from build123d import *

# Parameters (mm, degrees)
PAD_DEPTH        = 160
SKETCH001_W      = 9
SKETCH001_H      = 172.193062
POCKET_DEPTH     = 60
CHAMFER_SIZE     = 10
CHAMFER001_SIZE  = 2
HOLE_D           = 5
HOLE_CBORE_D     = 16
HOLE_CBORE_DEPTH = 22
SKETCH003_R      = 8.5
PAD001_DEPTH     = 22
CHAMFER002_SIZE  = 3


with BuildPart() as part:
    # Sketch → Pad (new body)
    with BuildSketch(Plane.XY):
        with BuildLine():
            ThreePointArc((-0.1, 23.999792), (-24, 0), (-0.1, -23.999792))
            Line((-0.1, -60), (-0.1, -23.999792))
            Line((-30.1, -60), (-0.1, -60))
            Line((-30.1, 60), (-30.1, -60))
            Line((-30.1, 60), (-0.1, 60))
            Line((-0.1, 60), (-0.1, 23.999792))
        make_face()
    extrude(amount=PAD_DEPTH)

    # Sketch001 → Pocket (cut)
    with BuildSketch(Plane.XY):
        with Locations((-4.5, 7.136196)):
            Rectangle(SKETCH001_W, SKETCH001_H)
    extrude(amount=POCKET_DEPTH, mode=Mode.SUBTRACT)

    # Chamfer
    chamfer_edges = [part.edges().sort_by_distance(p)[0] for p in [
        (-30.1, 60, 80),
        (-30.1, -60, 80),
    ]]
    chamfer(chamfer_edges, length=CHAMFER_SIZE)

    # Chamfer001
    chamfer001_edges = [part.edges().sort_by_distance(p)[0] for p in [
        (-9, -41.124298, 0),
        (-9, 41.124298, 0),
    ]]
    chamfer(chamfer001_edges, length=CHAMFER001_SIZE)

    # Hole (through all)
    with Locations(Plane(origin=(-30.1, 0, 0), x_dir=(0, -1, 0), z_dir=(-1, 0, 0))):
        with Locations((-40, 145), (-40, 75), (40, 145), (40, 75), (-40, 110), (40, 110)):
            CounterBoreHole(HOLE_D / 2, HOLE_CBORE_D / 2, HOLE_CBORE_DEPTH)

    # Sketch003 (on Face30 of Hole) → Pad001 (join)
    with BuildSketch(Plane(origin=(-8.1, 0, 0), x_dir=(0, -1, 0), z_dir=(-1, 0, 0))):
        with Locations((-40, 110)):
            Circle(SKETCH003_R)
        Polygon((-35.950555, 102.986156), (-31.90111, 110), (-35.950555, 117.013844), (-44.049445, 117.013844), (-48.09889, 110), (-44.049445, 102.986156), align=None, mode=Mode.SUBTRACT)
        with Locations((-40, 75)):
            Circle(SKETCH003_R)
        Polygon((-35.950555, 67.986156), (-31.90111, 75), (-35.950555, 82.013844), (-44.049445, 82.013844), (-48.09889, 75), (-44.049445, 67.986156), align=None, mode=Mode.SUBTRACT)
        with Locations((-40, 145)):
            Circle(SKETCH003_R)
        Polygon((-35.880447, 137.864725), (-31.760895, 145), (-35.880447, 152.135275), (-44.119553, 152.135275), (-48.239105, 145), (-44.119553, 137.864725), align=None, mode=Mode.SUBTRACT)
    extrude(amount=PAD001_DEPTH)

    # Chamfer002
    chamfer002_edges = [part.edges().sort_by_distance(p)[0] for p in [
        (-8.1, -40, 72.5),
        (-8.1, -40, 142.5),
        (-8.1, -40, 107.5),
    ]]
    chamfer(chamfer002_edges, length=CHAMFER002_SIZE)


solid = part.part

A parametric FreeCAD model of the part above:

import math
import FreeCAD as App
import Part
import Sketcher

V = App.Vector
Q = App.Units.Quantity


def edges_at(feature, points):
    """Names of the edges that pass closest to the given points."""
    edges = feature.Shape.Edges
    near = lambda p: min(range(len(edges)), key=lambda i: edges[i].distToShape(Part.Vertex(*p))[0])
    return sorted({f"Edge{near(p) + 1}" for p in points})


def add_polygon(sketch, points):
    """Adds a closed chain of lines whose ends are joined by coincident constraints."""
    first, n = sketch.GeometryCount, len(points)
    for a, b in zip(points, points[1:] + points[:1]):
        sketch.addGeometry(Part.LineSegment(App.Vector(*a, 0), App.Vector(*b, 0)), False)
    for i in range(n):
        sketch.addConstraint(Sketcher.Constraint("Coincident", first + i, 2, first + (i + 1) % n, 1))

doc = App.newDocument("Part")
params = doc.addObject("Spreadsheet::Sheet", "Params")
for row, (alias, value) in enumerate([
    ("sketch1_radius", "24 mm"),
    ("sketch1_width", "30 mm"),
    ("sketch1_height", "120 mm"),
    ("pad1_length", "160 mm"),
    ("sketch2_width", "9 mm"),
    ("pocket1_length", "60 mm"),
    ("chamfer_size", "10 mm"),
    ("chamfer2_size", "2 mm"),
    ("sketch3_diameter", "5 mm"),
    ("hole_diameter", "5 mm"),
    ("hole_cbore_diameter", "16 mm"),
    ("hole_cbore_depth", "22 mm"),
    ("sketch4_diameter", "17 mm"),
    ("pad2_length", "22 mm"),
    ("chamfer3_size", "3 mm"),
], start=1):
    params.set(f"A{row}", alias)
    params.set(f"B{row}", "=" + value)
    params.setAlias(f"B{row}", alias)

body = doc.addObject("PartDesign::Body", "Body")

sketch1 = body.newObject("Sketcher::SketchObject", "Sketch")
sketch1.AttachmentSupport = (doc.getObject("XY_Plane"), [""])
sketch1.MapMode = "FlatFace"
sketch1.addGeometry([
    Part.ArcOfCircle(Part.Circle(V(0, 0, 0), V(0, 0, 1), 24), math.radians(90), math.radians(270)),
    Part.LineSegment(V(0, 24, 0), V(0, 60, 0)),
    Part.LineSegment(V(0, 60, 0), V(-30, 60, 0)),
    Part.LineSegment(V(-30, 60, 0), V(-30, -60, 0)),
    Part.LineSegment(V(-30, -60, 0), V(0, -60, 0)),
    Part.LineSegment(V(0, -60, 0), V(0, -24, 0)),
], False)
sketch1.addConstraint([
    Sketcher.Constraint("Coincident", 0, 1, 1, 1),
    Sketcher.Constraint("Coincident", 1, 2, 2, 1),
    Sketcher.Constraint("Coincident", 2, 2, 3, 1),
    Sketcher.Constraint("Coincident", 3, 2, 4, 1),
    Sketcher.Constraint("Coincident", 4, 2, 5, 1),
    Sketcher.Constraint("Coincident", 5, 2, 0, 2),
    Sketcher.Constraint("Vertical", 1),
    Sketcher.Constraint("Horizontal", 2),
    Sketcher.Constraint("Vertical", 3),
    Sketcher.Constraint("Horizontal", 4),
    Sketcher.Constraint("Vertical", 5),
    Sketcher.Constraint("Coincident", 0, 3, -1, 1),
    Sketcher.Constraint("Symmetric", 1, 2, 4, 2, -1),
    Sketcher.Constraint("Radius", 0, Q("24 mm")),
    Sketcher.Constraint("DistanceX", 2, 2, 2, 1, Q("30 mm")),
    Sketcher.Constraint("DistanceY", 3, 2, 3, 1, Q("120 mm")),
    Sketcher.Constraint("DistanceX", 0, 1, -1, 1, Q("0.1 mm")),
])
sketch1.setExpression("Constraints[13]", "Params.sketch1_radius")
sketch1.setExpression("Constraints[14]", "Params.sketch1_width")
sketch1.setExpression("Constraints[15]", "Params.sketch1_height")
pad1 = body.newObject("PartDesign::Pad", "Pad")
pad1.Profile = sketch1
pad1.setExpression("Length", "Params.pad1_length")

sketch2 = body.newObject("Sketcher::SketchObject", "Sketch001")
sketch2.AttachmentSupport = (doc.getObject("XY_Plane"), [""])
sketch2.MapMode = "FlatFace"
add_polygon(sketch2, [(-9, 93), (-9, -79), (0, -79), (0, 93)])
sketch2.addConstraint([
    Sketcher.Constraint("Vertical", 0),
    Sketcher.Constraint("Horizontal", 1),
    Sketcher.Constraint("Vertical", 2),
    Sketcher.Constraint("Horizontal", 3),
    Sketcher.Constraint("PointOnObject", 1, 2, -2),
    Sketcher.Constraint("DistanceX", 1, 1, 1, 2, Q("9 mm")),
    Sketcher.Constraint("DistanceY", 0, 2, 0, 1, Q("172.193062 mm")),
    Sketcher.Constraint("DistanceY", 0, 2, -1, 1, Q("78.960335 mm")),
])
sketch2.setExpression("Constraints[9]", "Params.sketch2_width")
pocket1 = body.newObject("PartDesign::Pocket", "Pocket")
pocket1.Profile = sketch2
pocket1.setExpression("Length", "Params.pocket1_length")
pocket1.Reversed = True
doc.recompute()

chamfer = body.newObject("PartDesign::Chamfer", "Chamfer")
chamfer.Base = (pocket1, edges_at(pocket1, [(-30.1, 60, 80), (-30.1, -60, 80)]))
chamfer.setExpression("Size", "Params.chamfer_size")
doc.recompute()

chamfer2 = body.newObject("PartDesign::Chamfer", "Chamfer001")
chamfer2.Base = (chamfer, edges_at(chamfer, [(-9, -41.124, 0), (-9, 41.124, 0)]))
chamfer2.setExpression("Size", "Params.chamfer2_size")

sketch3 = body.newObject("Sketcher::SketchObject", "Sketch002")
sketch3.AttachmentSupport = (doc.getObject("YZ_Plane"), [""])
sketch3.MapMode = "FlatFace"
sketch3.AttachmentOffset = App.Placement(V(0, 0, -30.1), App.Rotation())
sketch3.addGeometry([
    Part.Circle(V(40, 145, 0), V(0, 0, 1), 2.5),
    Part.Circle(V(40, 75, 0), V(0, 0, 1), 2.5),
    Part.Circle(V(-40, 145, 0), V(0, 0, 1), 2.5),
    Part.Circle(V(-40, 75, 0), V(0, 0, 1), 2.5),
    Part.Circle(V(40, 110, 0), V(0, 0, 1), 2.5),
    Part.Circle(V(-40, 110, 0), V(0, 0, 1), 2.5),
], False)
sketch3.addConstraint([
    Sketcher.Constraint("Equal", 0, 1),
    Sketcher.Constraint("Equal", 1, 2),
    Sketcher.Constraint("Equal", 2, 3),
    Sketcher.Constraint("Equal", 3, 4),
    Sketcher.Constraint("Equal", 4, 5),
    Sketcher.Constraint("Symmetric", 0, 3, 2, 3, -2),
    Sketcher.Constraint("Symmetric", 1, 3, 3, 3, -2),
    Sketcher.Constraint("Symmetric", 4, 3, 5, 3, -2),
    Sketcher.Constraint("Vertical", 0, 3, 1, 3),
    Sketcher.Constraint("Vertical", 1, 3, 4, 3),
    Sketcher.Constraint("Diameter", 0, Q("5 mm")),
    Sketcher.Constraint("DistanceX", -1, 1, 0, 3, Q("40 mm")),
    Sketcher.Constraint("DistanceY", -1, 1, 0, 3, Q("145 mm")),
    Sketcher.Constraint("DistanceY", -1, 1, 1, 3, Q("75 mm")),
    Sketcher.Constraint("DistanceY", -1, 1, 4, 3, Q("110 mm")),
])
sketch3.setExpression("Constraints[10]", "Params.sketch3_diameter")
doc.recompute()
hole = body.newObject("PartDesign::Hole", "Hole")
hole.Profile = sketch3
hole.ThreadType = "None"
hole.setExpression("Diameter", "Params.hole_diameter")
hole.DepthType = "ThroughAll"
hole.HoleCutType = "Counterbore"
hole.setExpression("HoleCutDiameter", "Params.hole_cbore_diameter")
hole.setExpression("HoleCutDepth", "Params.hole_cbore_depth")
hole.Reversed = True

sketch4 = body.newObject("Sketcher::SketchObject", "Sketch003")
sketch4.AttachmentSupport = (doc.getObject("YZ_Plane"), [""])
sketch4.MapMode = "FlatFace"
sketch4.AttachmentOffset = App.Placement(V(0, 0, -8.1), App.Rotation())
sketch4.addGeometry(Part.Circle(V(40, 110, 0), V(0, 0, 1), 8), False)
add_polygon(sketch4, [(32, 110), (36, 103), (44, 103), (48, 110), (44, 117), (36, 117)])
sketch4.addGeometry(Part.Circle(V(40, 75, 0), V(0, 0, 1), 8), False)
add_polygon(sketch4, [(32, 75), (36, 68), (44, 68), (48, 75), (44, 82), (36, 82)])
sketch4.addGeometry(Part.Circle(V(40, 145, 0), V(0, 0, 1), 8), False)
add_polygon(sketch4, [(32, 145), (36, 138), (44, 138), (48, 145), (44, 152), (36, 152)])
sketch4.addConstraint([
    Sketcher.Constraint("Horizontal", 2),
    Sketcher.Constraint("Horizontal", 5),
    Sketcher.Constraint("Horizontal", 9),
    Sketcher.Constraint("Horizontal", 12),
    Sketcher.Constraint("Horizontal", 16),
    Sketcher.Constraint("Horizontal", 19),
    Sketcher.Constraint("Equal", 0, 7),
    Sketcher.Constraint("Equal", 7, 14),
    Sketcher.Constraint("Parallel", 1, 4),
    Sketcher.Constraint("Parallel", 3, 6),
    Sketcher.Constraint("Parallel", 4, 8),
    Sketcher.Constraint("Parallel", 6, 10),
    Sketcher.Constraint("Parallel", 8, 11),
    Sketcher.Constraint("Parallel", 10, 13),
    Sketcher.Constraint("Parallel", 11, 15),
    Sketcher.Constraint("Parallel", 13, 17),
    Sketcher.Constraint("Parallel", 15, 18),
    Sketcher.Constraint("Parallel", 17, 20),
    Sketcher.Constraint("Horizontal", 0, 3, 3, 2),
    Sketcher.Constraint("Horizontal", 3, 2, 6, 2),
    Sketcher.Constraint("Horizontal", 7, 3, 10, 2),
    Sketcher.Constraint("Horizontal", 10, 2, 13, 2),
    Sketcher.Constraint("Horizontal", 14, 3, 17, 2),
    Sketcher.Constraint("Horizontal", 17, 2, 20, 2),
    Sketcher.Constraint("Vertical", 0, 3, 7, 3),
    Sketcher.Constraint("Vertical", 7, 3, 14, 3),
    Sketcher.Constraint("Vertical", 2, 2, 4, 2),
    Sketcher.Constraint("Vertical", 1, 2, 5, 2),
    Sketcher.Constraint("Vertical", 5, 2, 8, 2),
    Sketcher.Constraint("Vertical", 4, 2, 9, 2),
    Sketcher.Constraint("Vertical", 3, 2, 10, 2),
    Sketcher.Constraint("Vertical", 9, 2, 11, 2),
    Sketcher.Constraint("Vertical", 16, 2, 18, 2),
    Sketcher.Constraint("Diameter", 0, Q("17 mm")),
    Sketcher.Constraint("Angle", 1, Q("-59.999998 deg")),
    Sketcher.Constraint("DistanceX", -1, 1, 0, 3, Q("40 mm")),
    Sketcher.Constraint("DistanceY", -1, 1, 0, 3, Q("110 mm")),
    Sketcher.Constraint("DistanceY", -1, 1, 7, 3, Q("75 mm")),
    Sketcher.Constraint("DistanceY", -1, 1, 14, 3, Q("145 mm")),
    Sketcher.Constraint("DistanceX", 15, 2, 4, 2, Q("8.168998 mm")),
    Sketcher.Constraint("DistanceX", 5, 2, 16, 2, Q("8.168998 mm")),
    Sketcher.Constraint("DistanceX", 2, 1, 2, 2, Q("8.09889 mm")),
    Sketcher.Constraint("Distance", 1, Q("8.09889 mm")),
    Sketcher.Constraint("DistanceX", -1, 1, 3, 2, Q("48.09889 mm")),
    Sketcher.Constraint("DistanceY", 5, 2, 15, 2, Q("20.850881 mm")),
])
sketch4.setExpression("Constraints[51]", "Params.sketch4_diameter")
pad2 = body.newObject("PartDesign::Pad", "Pad001")
pad2.Profile = sketch4
pad2.setExpression("Length", "Params.pad2_length")
pad2.Reversed = True
doc.recompute()

chamfer3 = body.newObject("PartDesign::Chamfer", "Chamfer002")
chamfer3.Base = (pad2, edges_at(pad2, [(-8.1, -42.5, 75), (-8.1, -42.5, 145), (-8.1, -42.5, 110)]))
chamfer3.setExpression("Size", "Params.chamfer3_size")

doc.recompute()
